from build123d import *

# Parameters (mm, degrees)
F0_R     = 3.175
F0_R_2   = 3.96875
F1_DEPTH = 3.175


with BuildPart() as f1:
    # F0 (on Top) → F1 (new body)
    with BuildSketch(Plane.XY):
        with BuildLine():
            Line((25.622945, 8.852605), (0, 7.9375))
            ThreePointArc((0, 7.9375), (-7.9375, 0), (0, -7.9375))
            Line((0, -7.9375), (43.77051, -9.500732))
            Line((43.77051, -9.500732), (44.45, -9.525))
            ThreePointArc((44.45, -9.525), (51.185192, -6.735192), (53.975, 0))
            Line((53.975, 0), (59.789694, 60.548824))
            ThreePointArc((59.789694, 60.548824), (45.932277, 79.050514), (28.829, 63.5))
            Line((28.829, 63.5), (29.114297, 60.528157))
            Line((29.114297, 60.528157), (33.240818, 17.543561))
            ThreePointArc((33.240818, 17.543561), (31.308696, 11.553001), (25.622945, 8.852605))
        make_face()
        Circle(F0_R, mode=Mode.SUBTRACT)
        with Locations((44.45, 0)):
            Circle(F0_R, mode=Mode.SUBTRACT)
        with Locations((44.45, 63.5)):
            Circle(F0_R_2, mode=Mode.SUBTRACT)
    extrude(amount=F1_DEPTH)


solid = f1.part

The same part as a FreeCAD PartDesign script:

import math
import FreeCAD as App
import Part
import Sketcher
Q = App.Units.Quantity

doc = App.newDocument("Part")
body = doc.addObject("PartDesign::Body", "Body")

# Sketch on XY plane
sketch1 = doc.addObject("Sketcher::SketchObject", "Sketch")
body.addObject(sketch1)
sketch1.AttachmentSupport = (doc.XY_Plane, [""])
sketch1.MapMode = "FlatFace"
sketch1.addGeometry([
    Part.LineSegment(App.Vector(25.6, 8.9, 0), App.Vector(0, 7.9, 0)),  # 0
    Part.ArcOfCircle(Part.Circle(App.Vector(0, 0, 0), App.Vector(0, 0, 1), 7.9), math.radians(90), math.radians(270)),  # 1
    Part.LineSegment(App.Vector(0, -7.9, 0), App.Vector(43.8, -9.5, 0)),  # 2
    Part.LineSegment(App.Vector(43.8, -9.5, 0), App.Vector(44.5, -9.5, 0)),  # 3
    Part.ArcOfCircle(Part.Circle(App.Vector(44.4, 0, 0), App.Vector(0, 0, 1), 9.5), math.radians(-90), math.radians(0)),  # 4
    Part.LineSegment(App.Vector(54, 0, 0), App.Vector(59.8, 60.5, 0)),  # 5
    Part.ArcOfCircle(Part.Circle(App.Vector(44.5, 63.5, 0), App.Vector(0, 0, 1), 15.6), math.radians(-11), math.radians(180)),  # 6
    Part.LineSegment(App.Vector(28.8, 63.5, 0), App.Vector(29.1, 60.5, 0)),  # 7
    Part.LineSegment(App.Vector(29.1, 60.5, 0), App.Vector(33.2, 17.5, 0)),  # 8
    Part.ArcOfCircle(Part.Circle(App.Vector(25.3, 16.8, 0), App.Vector(0, 0, 1), 7.9), math.radians(-88), math.radians(5)),  # 9
    Part.Circle(App.Vector(0, 0, 0), App.Vector(0, 0, 1), 3.2),  # 10
    Part.Circle(App.Vector(44.5, 0, 0), App.Vector(0, 0, 1), 3.2),  # 11
    Part.Circle(App.Vector(44.5, 63.5, 0), App.Vector(0, 0, 1), 4),  # 12
], False)
sketch1.addConstraint([
    Sketcher.Constraint("Coincident", 0, 2, 1, 1),
    Sketcher.Constraint("Coincident", 1, 2, 2, 1),
    Sketcher.Constraint("Coincident", 2, 2, 3, 1),
    Sketcher.Constraint("Coincident", 3, 2, 4, 1),
    Sketcher.Constraint("Coincident", 4, 2, 5, 1),
    Sketcher.Constraint("Coincident", 5, 2, 6, 1),
    Sketcher.Constraint("Coincident", 6, 2, 7, 1),
    Sketcher.Constraint("Coincident", 7, 2, 8, 1),
    Sketcher.Constraint("Tangent", 8, 2, 9, 2),
    Sketcher.Constraint("Tangent", 9, 1, 0, 1),
    Sketcher.Constraint("Coincident", 1, 3, -1, 1),
    Sketcher.Constraint("Coincident", 10, 3, -1, 1),
    Sketcher.Constraint("Coincident", 11, 3, 4, 3),
    Sketcher.Constraint("Coincident", 12, 3, 6, 3),
    Sketcher.Constraint("Equal", 1, 9),
    Sketcher.Constraint("Equal", 10, 11),
    Sketcher.Constraint("PointOnObject", 4, 3, -1),
    Sketcher.Constraint("PointOnObject", 0, 2, -2),
    Sketcher.Constraint("PointOnObject", 1, 2, -2),
    Sketcher.Constraint("PointOnObject", 4, 2, -1),
    Sketcher.Constraint("Parallel", 2, 3),
    Sketcher.Constraint("Parallel", 7, 8),
    Sketcher.Constraint("Horizontal", 12, 3, 6, 2),
    Sketcher.Constraint("Vertical", 4, 3, 6, 3),
    Sketcher.Constraint("Vertical", 12, 3, 3, 2),
    Sketcher.Constraint("Diameter", 10, Q("0.25 in")),
    Sketcher.Constraint("Diameter", 12, Q("0.3125 in")),
    Sketcher.Constraint("Radius", 1, Q("0.3125 in")),
    Sketcher.Constraint("Radius", 4, Q("0.375 in")),
    Sketcher.Constraint("Radius", 6, Q("0.615 in")),
    Sketcher.Constraint("DistanceY", -1, 1, 6, 3, Q("2.5 in")),
    Sketcher.Constraint("DistanceX", -1, 1, 4, 3, Q("1.75 in")),
    Sketcher.Constraint("Distance", 0, Q("25.639281 mm")),
    Sketcher.Constraint("DistanceX", -1, 1, 2, 2, Q("43.77051 mm")),
    Sketcher.Constraint("DistanceY", -1, 1, 8, 2, Q("17.543561 mm")),
    Sketcher.Constraint("DistanceX", 9, 3, 5, 2, Q("34.450051 mm")),
    Sketcher.Constraint("DistanceY", 9, 3, 7, 2, Q("43.743109 mm")),
])
pad1 = doc.addObject("PartDesign::Pad", "Pad")
body.addObject(pad1)
pad1.Profile = sketch1
pad1.Length = Q("0.125 in")

doc.recompute()
